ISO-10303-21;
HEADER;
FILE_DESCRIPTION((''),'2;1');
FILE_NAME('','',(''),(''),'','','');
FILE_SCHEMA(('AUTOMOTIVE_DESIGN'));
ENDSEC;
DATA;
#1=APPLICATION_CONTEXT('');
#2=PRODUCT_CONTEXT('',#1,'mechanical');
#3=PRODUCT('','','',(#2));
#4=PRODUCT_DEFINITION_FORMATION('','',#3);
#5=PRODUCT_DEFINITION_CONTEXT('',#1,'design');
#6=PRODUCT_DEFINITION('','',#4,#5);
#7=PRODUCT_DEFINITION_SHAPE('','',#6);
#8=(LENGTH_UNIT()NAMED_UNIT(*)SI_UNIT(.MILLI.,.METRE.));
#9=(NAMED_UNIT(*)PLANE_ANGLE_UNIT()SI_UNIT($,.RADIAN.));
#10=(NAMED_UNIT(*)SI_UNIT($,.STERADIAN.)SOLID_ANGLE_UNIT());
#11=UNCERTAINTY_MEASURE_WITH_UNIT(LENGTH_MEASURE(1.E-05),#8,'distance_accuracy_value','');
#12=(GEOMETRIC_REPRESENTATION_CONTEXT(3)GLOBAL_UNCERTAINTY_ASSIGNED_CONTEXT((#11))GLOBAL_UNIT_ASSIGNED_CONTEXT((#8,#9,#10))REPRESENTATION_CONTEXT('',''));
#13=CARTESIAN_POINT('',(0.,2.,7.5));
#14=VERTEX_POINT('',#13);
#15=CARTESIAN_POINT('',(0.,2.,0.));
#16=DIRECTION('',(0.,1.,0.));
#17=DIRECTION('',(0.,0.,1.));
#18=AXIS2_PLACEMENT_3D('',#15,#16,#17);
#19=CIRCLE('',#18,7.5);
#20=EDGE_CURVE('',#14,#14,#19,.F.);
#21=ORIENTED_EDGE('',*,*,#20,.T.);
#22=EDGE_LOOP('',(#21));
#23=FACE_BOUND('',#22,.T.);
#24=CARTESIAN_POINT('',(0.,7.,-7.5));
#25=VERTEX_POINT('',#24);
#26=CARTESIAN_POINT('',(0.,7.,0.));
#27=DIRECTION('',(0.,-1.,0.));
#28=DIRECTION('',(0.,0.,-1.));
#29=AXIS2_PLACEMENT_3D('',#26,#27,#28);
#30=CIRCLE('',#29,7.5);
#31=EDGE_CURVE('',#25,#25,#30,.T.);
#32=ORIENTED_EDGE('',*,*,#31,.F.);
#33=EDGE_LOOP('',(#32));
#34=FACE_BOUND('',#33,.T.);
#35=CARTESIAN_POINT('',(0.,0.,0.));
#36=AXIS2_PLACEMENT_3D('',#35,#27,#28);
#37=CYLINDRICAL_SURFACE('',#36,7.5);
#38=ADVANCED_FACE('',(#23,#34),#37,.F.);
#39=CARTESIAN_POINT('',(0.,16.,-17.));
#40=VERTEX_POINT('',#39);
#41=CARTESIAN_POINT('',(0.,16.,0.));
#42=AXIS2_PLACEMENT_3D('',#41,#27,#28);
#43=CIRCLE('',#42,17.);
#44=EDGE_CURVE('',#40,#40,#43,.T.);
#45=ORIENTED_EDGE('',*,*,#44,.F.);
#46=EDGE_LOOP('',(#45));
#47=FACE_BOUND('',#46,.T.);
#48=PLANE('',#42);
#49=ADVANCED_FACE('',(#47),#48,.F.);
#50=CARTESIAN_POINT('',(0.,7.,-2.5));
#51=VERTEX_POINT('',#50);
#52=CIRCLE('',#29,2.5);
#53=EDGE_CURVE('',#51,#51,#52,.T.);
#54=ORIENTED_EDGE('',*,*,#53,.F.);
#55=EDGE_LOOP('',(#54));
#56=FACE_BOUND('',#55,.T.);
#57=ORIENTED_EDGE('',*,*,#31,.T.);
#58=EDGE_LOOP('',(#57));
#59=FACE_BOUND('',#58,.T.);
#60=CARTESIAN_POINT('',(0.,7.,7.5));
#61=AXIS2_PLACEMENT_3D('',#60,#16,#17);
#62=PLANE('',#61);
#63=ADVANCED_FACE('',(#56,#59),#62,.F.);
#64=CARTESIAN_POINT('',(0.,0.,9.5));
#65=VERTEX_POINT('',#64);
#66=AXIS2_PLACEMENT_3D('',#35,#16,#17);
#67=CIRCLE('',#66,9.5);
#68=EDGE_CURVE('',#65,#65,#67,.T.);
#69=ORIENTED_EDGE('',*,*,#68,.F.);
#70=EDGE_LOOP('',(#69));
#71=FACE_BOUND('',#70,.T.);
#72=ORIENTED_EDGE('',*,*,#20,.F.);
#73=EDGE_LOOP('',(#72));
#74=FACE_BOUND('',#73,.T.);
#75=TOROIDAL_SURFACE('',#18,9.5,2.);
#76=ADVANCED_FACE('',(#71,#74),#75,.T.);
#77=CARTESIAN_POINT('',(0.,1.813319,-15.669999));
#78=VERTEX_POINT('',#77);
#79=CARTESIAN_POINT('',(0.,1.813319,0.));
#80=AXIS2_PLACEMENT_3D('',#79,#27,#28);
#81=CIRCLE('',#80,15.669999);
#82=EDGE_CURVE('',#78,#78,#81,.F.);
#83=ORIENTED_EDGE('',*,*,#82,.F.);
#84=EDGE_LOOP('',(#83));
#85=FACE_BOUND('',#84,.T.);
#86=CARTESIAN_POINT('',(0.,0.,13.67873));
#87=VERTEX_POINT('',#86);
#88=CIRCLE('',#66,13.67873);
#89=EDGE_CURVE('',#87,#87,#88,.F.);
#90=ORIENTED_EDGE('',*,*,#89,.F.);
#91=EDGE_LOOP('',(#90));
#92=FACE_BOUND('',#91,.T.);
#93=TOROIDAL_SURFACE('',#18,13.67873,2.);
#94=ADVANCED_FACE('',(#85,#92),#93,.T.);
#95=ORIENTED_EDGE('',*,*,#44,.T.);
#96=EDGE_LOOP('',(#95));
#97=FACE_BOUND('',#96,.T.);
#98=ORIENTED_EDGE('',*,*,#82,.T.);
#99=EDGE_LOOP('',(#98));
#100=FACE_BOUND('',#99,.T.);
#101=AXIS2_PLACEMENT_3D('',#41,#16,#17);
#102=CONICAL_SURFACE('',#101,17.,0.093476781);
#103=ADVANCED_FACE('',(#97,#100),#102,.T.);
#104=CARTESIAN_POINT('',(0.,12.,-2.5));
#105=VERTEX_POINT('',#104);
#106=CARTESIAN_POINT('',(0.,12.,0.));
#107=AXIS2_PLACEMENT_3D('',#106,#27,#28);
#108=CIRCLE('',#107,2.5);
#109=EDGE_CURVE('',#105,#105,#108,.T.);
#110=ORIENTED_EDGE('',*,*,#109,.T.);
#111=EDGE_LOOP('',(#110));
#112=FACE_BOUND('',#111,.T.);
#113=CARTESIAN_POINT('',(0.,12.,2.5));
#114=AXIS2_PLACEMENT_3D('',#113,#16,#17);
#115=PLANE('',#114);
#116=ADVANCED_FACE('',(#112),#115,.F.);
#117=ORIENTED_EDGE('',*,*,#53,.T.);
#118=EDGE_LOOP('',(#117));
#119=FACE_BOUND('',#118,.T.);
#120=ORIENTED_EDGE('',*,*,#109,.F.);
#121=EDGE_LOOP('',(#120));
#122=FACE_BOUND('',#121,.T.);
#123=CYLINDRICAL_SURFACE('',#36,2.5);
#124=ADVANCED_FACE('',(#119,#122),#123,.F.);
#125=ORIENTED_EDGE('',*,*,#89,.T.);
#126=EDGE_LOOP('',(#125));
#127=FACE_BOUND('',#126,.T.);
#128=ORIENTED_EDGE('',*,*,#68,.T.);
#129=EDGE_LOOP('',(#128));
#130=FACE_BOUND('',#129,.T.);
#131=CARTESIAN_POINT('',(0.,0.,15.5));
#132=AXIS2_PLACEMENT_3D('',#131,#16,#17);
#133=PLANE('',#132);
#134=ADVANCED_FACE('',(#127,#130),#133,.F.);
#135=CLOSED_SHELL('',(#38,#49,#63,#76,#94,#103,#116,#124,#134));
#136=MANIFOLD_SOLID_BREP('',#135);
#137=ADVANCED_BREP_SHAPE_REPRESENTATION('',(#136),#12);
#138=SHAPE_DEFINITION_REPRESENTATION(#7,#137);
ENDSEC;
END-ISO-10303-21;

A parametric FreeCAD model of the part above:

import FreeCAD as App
import Part
import Sketcher
Q = App.Units.Quantity


def edges_at(feature, points):
    """Names of the edges that pass closest to the given points."""
    edges = feature.Shape.Edges
    near = lambda p: min(range(len(edges)), key=lambda i: edges[i].distToShape(Part.Vertex(*p))[0])
    return sorted({f"Edge{near(p) + 1}" for p in points})

doc = App.newDocument("Part")
body = doc.addObject("PartDesign::Body", "Body")

sketch1 = body.newObject("Sketcher::SketchObject", "Sketch")
sketch1.AttachmentSupport = (doc.getObject("YZ_Plane"), [""])
sketch1.MapMode = "FlatFace"
sketch1.addGeometry([
    Part.LineSegment(App.Vector(16, 0, 0), App.Vector(16, 17, 0)),
    Part.LineSegment(App.Vector(16, 17, 0), App.Vector(0, 15.5, 0)),
    Part.LineSegment(App.Vector(0, 15.5, 0), App.Vector(0, 7.5, 0)),
    Part.LineSegment(App.Vector(0, 7.5, 0), App.Vector(7, 7.5, 0)),
    Part.LineSegment(App.Vector(7, 7.5, 0), App.Vector(7, 2.5, 0)),
    Part.LineSegment(App.Vector(7, 2.5, 0), App.Vector(12, 2.5, 0)),
    Part.LineSegment(App.Vector(12, 2.5, 0), App.Vector(12, 0, 0)),
    Part.LineSegment(App.Vector(12, 0, 0), App.Vector(16, 0, 0)),
], False)
sketch1.addConstraint([
    Sketcher.Constraint("Coincident", 0, 2, 1, 1),
    Sketcher.Constraint("Coincident", 1, 2, 2, 1),
    Sketcher.Constraint("Coincident", 2, 2, 3, 1),
    Sketcher.Constraint("Coincident", 3, 2, 4, 1),
    Sketcher.Constraint("Coincident", 4, 2, 5, 1),
    Sketcher.Constraint("Coincident", 5, 2, 6, 1),
    Sketcher.Constraint("Coincident", 6, 2, 7, 1),
    Sketcher.Constraint("Coincident", 7, 2, 0, 1),
    Sketcher.Constraint("Vertical", 0),
    Sketcher.Constraint("Vertical", 2),
    Sketcher.Constraint("Horizontal", 3),
    Sketcher.Constraint("Vertical", 4),
    Sketcher.Constraint("Horizontal", 5),
    Sketcher.Constraint("Vertical", 6),
    Sketcher.Constraint("Horizontal", 7),
    Sketcher.Constraint("PointOnObject", 1, 2, -2),
    Sketcher.Constraint("PointOnObject", 6, 2, -1),
    Sketcher.Constraint("Equal", 5, 4),
    Sketcher.Constraint("DistanceX", 3, 1, 3, 2, Q("7 mm")),
    Sketcher.Constraint("DistanceX", 5, 1, 5, 2, Q("5 mm")),
    Sketcher.Constraint("DistanceX", 7, 1, 7, 2, Q("4 mm")),
    Sketcher.Constraint("DistanceY", 0, 1, 0, 2, Q("17 mm")),
    Sketcher.Constraint("DistanceY", 2, 2, 2, 1, Q("8 mm")),
    Sketcher.Constraint("DistanceY", 6, 2, 6, 1, Q("2.5 mm")),
])
revolution = body.newObject("PartDesign::Revolution", "Revolution")
revolution.Profile = sketch1
revolution.ReferenceAxis = (sketch1, ["H_Axis"])
revolution.Angle = 360
doc.recompute()

fillet = body.newObject("PartDesign::Fillet", "Fillet")
fillet.Base = (revolution, edges_at(revolution, [(0, 0, 7.5), (0, 0, 15.5)]))
fillet.Radius = 2

doc.recompute()
